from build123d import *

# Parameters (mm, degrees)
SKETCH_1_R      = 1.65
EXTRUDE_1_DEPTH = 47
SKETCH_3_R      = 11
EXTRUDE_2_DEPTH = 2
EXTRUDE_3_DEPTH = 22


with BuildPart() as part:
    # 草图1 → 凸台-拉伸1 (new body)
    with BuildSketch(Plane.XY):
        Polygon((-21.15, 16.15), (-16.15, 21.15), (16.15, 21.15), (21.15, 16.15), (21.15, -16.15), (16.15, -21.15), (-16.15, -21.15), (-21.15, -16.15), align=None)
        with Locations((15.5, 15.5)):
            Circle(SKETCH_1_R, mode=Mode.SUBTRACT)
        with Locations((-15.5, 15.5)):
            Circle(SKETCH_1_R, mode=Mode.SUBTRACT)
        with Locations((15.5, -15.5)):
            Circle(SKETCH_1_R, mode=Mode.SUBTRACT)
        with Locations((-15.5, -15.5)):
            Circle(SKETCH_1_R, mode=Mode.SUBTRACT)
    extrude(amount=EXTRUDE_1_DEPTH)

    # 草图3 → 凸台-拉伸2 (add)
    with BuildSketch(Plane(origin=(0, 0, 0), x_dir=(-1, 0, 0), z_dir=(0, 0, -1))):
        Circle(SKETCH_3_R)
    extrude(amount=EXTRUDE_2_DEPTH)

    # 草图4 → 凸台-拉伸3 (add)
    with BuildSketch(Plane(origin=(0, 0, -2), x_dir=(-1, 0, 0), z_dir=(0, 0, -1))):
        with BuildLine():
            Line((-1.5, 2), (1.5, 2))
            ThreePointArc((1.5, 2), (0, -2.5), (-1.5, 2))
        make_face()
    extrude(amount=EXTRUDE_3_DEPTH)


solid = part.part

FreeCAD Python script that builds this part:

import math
import FreeCAD as App
import Part
import Sketcher
from FreeCAD import Vector

doc = App.newDocument("Part")
body = doc.addObject("PartDesign::Body", "Body")

sketch1 = body.newObject("Sketcher::SketchObject", "Sketch")
sketch1.AttachmentSupport = (doc.getObject("XY_Plane"), [""])
sketch1.MapMode = "FlatFace"
sketch1.addGeometry([
    Part.LineSegment(Vector(-16.1, 21.1, 0), Vector(-21.1, 16.1, 0)),
    Part.LineSegment(Vector(-21.1, 16.1, 0), Vector(-21.1, -16.1, 0)),
    Part.LineSegment(Vector(-21.1, -16.1, 0), Vector(-16.1, -21.1, 0)),
    Part.LineSegment(Vector(-16.1, -21.1, 0), Vector(16.1, -21.1, 0)),
    Part.LineSegment(Vector(16.1, -21.1, 0), Vector(21.1, -16.1, 0)),
    Part.LineSegment(Vector(21.1, -16.1, 0), Vector(21.1, 16.1, 0)),
    Part.LineSegment(Vector(21.1, 16.1, 0), Vector(16.1, 21.1, 0)),
    Part.LineSegment(Vector(16.1, 21.1, 0), Vector(-16.1, 21.1, 0)),
    Part.Circle(Vector(15.5, -15.5, 0), Vector(0, 0, 1), 1.6),
    Part.Circle(Vector(-15.5, -15.5, 0), Vector(0, 0, 1), 1.6),
    Part.Circle(Vector(15.5, 15.5, 0), Vector(0, 0, 1), 1.6),
    Part.Circle(Vector(-15.5, 15.5, 0), Vector(0, 0, 1), 1.6),
], False)
sketch1.addConstraint([
    Sketcher.Constraint("Coincident", 0, 2, 1, 1),
    Sketcher.Constraint("Coincident", 1, 2, 2, 1),
    Sketcher.Constraint("Coincident", 2, 2, 3, 1),
    Sketcher.Constraint("Coincident", 3, 2, 4, 1),
    Sketcher.Constraint("Coincident", 4, 2, 5, 1),
    Sketcher.Constraint("Coincident", 5, 2, 6, 1),
    Sketcher.Constraint("Coincident", 6, 2, 7, 1),
    Sketcher.Constraint("Coincident", 7, 2, 0, 1),
    Sketcher.Constraint("Vertical", 1),
    Sketcher.Constraint("Horizontal", 3),
    Sketcher.Constraint("Vertical", 5),
    Sketcher.Constraint("Horizontal", 7),
    Sketcher.Constraint("Equal", 8, 9),
    Sketcher.Constraint("Equal", 9, 10),
    Sketcher.Constraint("Equal", 10, 11),
    Sketcher.Constraint("Symmetric", 9, 3, 10, 3, -1, 1),
    Sketcher.Constraint("Symmetric", 8, 3, 11, 3, -1, 1),
    Sketcher.Constraint("Symmetric", 0, 2, 4, 2, -1, 1),
    Sketcher.Constraint("Symmetric", 2, 2, 6, 2, -1, 1),
    Sketcher.Constraint("Symmetric", 8, 3, 9, 3, -2),
    Sketcher.Constraint("Perpendicular", 0, 2),
    Sketcher.Constraint("Perpendicular", 2, 4),
    Sketcher.Constraint("Perpendicular", 4, 6),
    Sketcher.Constraint("Horizontal", 1, 2, 4, 2),
    Sketcher.Constraint("Vertical", 3, 2, 6, 2),
    Sketcher.Constraint("Equal", 7, 1),
    Sketcher.Constraint("Diameter", 8, 3.3),
    Sketcher.Constraint("DistanceX", 3, 1, 3, 2, 32.3),
    Sketcher.Constraint("DistanceX", 9, 3, 8, 3, 31.0),
    Sketcher.Constraint("DistanceY", 8, 3, 10, 3, 31.0),
    Sketcher.Constraint("DistanceX", 1, 2, 2, 2, 5.0),
])
pad1 = body.newObject("PartDesign::Pad", "Pad")
pad1.Profile = sketch1
pad1.Length = 47

sketch2 = body.newObject("Sketcher::SketchObject", "Sketch001")
sketch2.AttachmentSupport = (doc.getObject("XY_Plane"), [""])
sketch2.MapMode = "FlatFace"
sketch2.addGeometry(Part.Circle(Vector(0, 0, 0), Vector(0, 0, 1), 11), False)
sketch2.addConstraint([
    Sketcher.Constraint("Coincident", 0, 3, -1, 1),
    Sketcher.Constraint("Diameter", 0, 22.0),
])
pad2 = body.newObject("PartDesign::Pad", "Pad001")
pad2.Profile = sketch2
pad2.Length = 2
pad2.Reversed = True

sketch3 = body.newObject("Sketcher::SketchObject", "Sketch002")
sketch3.AttachmentSupport = (doc.getObject("XY_Plane"), [""])
sketch3.MapMode = "FlatFace"
sketch3.AttachmentOffset = App.Placement(Vector(0, 0, -2), App.Rotation())
sketch3.addGeometry([
    Part.LineSegment(Vector(-1.5, 2, 0), Vector(1.5, 2, 0)),
    Part.ArcOfCircle(Part.Circle(Vector(0, 0, 0), Vector(0, 0, 1), 2.5), math.radians(127), math.radians(413)),
], False)
sketch3.addConstraint([
    Sketcher.Constraint("Coincident", 0, 1, 1, 1),
    Sketcher.Constraint("Coincident", 1, 2, 0, 2),
    Sketcher.Constraint("Horizontal", 0),
    Sketcher.Constraint("Coincident", 1, 3, -1, 1),
    Sketcher.Constraint("Radius", 1, 2.5),
    Sketcher.Constraint("DistanceX", 0, 1, 0, 2, 3.0),
])
pad3 = body.newObject("PartDesign::Pad", "Pad002")
pad3.Profile = sketch3
pad3.Length = 22
pad3.Reversed = True

doc.recompute()
